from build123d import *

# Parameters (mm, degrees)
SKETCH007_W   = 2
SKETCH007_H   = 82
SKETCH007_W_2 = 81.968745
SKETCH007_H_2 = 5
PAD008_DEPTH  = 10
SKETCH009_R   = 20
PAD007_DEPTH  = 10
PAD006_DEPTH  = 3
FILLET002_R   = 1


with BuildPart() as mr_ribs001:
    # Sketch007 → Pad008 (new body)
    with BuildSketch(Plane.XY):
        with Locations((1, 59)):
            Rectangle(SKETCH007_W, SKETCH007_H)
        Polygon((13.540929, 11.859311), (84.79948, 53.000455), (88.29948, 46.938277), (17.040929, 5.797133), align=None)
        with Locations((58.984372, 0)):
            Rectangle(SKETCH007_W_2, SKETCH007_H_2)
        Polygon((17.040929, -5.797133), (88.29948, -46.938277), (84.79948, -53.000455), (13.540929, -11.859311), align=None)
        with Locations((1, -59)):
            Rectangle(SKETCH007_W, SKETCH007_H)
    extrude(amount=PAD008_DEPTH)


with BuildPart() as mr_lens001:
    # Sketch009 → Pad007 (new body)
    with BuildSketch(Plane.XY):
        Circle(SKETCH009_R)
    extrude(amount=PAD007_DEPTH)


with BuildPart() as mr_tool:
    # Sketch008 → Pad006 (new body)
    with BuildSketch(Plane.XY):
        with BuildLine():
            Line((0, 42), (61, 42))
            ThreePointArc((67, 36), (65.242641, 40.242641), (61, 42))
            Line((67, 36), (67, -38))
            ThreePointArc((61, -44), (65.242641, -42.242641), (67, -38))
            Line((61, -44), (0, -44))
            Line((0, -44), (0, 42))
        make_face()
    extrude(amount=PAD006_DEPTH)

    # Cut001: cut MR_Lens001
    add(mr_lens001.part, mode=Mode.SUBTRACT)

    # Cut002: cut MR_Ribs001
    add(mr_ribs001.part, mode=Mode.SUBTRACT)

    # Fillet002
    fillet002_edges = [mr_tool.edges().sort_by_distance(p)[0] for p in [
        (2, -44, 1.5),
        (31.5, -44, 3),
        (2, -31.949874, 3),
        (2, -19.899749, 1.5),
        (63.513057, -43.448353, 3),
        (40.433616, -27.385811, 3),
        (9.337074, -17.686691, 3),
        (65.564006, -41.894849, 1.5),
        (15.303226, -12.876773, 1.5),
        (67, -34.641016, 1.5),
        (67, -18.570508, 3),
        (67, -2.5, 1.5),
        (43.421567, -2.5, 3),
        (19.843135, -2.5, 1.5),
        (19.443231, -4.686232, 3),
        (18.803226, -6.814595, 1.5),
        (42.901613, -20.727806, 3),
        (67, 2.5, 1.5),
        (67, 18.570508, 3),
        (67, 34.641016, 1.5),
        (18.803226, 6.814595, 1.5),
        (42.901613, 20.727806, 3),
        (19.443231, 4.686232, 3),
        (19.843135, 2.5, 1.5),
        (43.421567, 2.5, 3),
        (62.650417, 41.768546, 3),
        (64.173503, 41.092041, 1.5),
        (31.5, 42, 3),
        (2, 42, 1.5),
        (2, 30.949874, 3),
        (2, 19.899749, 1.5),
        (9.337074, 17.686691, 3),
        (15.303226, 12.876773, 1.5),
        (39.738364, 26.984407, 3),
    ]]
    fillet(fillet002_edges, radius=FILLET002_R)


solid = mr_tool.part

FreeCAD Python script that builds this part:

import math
import FreeCAD as App
import Part
import Sketcher

V = App.Vector
Q = App.Units.Quantity


def edges_at(feature, points):
    """Names of the edges that pass closest to the given points."""
    edges = feature.Shape.Edges
    near = lambda p: min(range(len(edges)), key=lambda i: edges[i].distToShape(Part.Vertex(*p))[0])
    return sorted({f"Edge{near(p) + 1}" for p in points})

doc = App.newDocument("Part")
body = doc.addObject("PartDesign::Body", "Body")
body.AllowCompound = True

# Sketch on XY plane
sketch1 = body.newObject("Sketcher::SketchObject", "Sketch")
sketch1.AttachmentSupport = (doc.getObject("XY_Plane"), [""])
sketch1.MapMode = "FlatFace"
sketch1.addGeometry(Part.LineSegment(V(0, 100, 0), V(0, 18, 0)), False)
sketch1.addGeometry(Part.LineSegment(V(0, 18, 0), V(2, 18, 0)), False)
sketch1.addGeometry(Part.LineSegment(V(2, 18, 0), V(2, 100, 0)), False)
sketch1.addGeometry(Part.LineSegment(V(2, 100, 0), V(0, 100, 0)), False)
sketch1.addGeometry(Part.LineSegment(V(84.8, 53, 0), V(13.5, 11.9, 0)), False)
sketch1.addGeometry(Part.LineSegment(V(13.5, 11.9, 0), V(17, 5.8, 0)), False)
sketch1.addGeometry(Part.LineSegment(V(17, 5.8, 0), V(88.3, 46.9, 0)), False)
sketch1.addGeometry(Part.LineSegment(V(88.3, 46.9, 0), V(84.8, 53, 0)), False)
sketch1.addGeometry(Part.LineSegment(V(18, 2.5, 0), V(18, -2.5, 0)), False)
sketch1.addGeometry(Part.LineSegment(V(18, -2.5, 0), V(100, -2.5, 0)), False)
sketch1.addGeometry(Part.LineSegment(V(100, -2.5, 0), V(100, 2.5, 0)), False)
sketch1.addGeometry(Part.LineSegment(V(100, 2.5, 0), V(18, 2.5, 0)), False)
sketch1.addGeometry(Part.LineSegment(V(88.3, -46.9, 0), V(17, -5.8, 0)), False)
sketch1.addGeometry(Part.LineSegment(V(17, -5.8, 0), V(13.5, -11.9, 0)), False)
sketch1.addGeometry(Part.LineSegment(V(13.5, -11.9, 0), V(84.8, -53, 0)), False)
sketch1.addGeometry(Part.LineSegment(V(84.8, -53, 0), V(88.3, -46.9, 0)), False)
sketch1.addGeometry(Part.LineSegment(V(0, -18, 0), V(0, -100, 0)), False)
sketch1.addGeometry(Part.LineSegment(V(0, -100, 0), V(2, -100, 0)), False)
sketch1.addGeometry(Part.LineSegment(V(2, -100, 0), V(2, -18, 0)), False)
sketch1.addGeometry(Part.LineSegment(V(2, -18, 0), V(0, -18, 0)), False)
sketch1.addConstraint(Sketcher.Constraint("Coincident", 0, 2, 1, 1))
sketch1.addConstraint(Sketcher.Constraint("Coincident", 1, 2, 2, 1))
sketch1.addConstraint(Sketcher.Constraint("Coincident", 2, 2, 3, 1))
sketch1.addConstraint(Sketcher.Constraint("Coincident", 3, 2, 0, 1))
sketch1.addConstraint(Sketcher.Constraint("Coincident", 4, 2, 5, 1))
sketch1.addConstraint(Sketcher.Constraint("Coincident", 5, 2, 6, 1))
sketch1.addConstraint(Sketcher.Constraint("Coincident", 6, 2, 7, 1))
sketch1.addConstraint(Sketcher.Constraint("Coincident", 7, 2, 4, 1))
sketch1.addConstraint(Sketcher.Constraint("Coincident", 8, 2, 9, 1))
sketch1.addConstraint(Sketcher.Constraint("Coincident", 9, 2, 10, 1))
sketch1.addConstraint(Sketcher.Constraint("Coincident", 10, 2, 11, 1))
sketch1.addConstraint(Sketcher.Constraint("Coincident", 11, 2, 8, 1))
sketch1.addConstraint(Sketcher.Constraint("Coincident", 12, 2, 13, 1))
sketch1.addConstraint(Sketcher.Constraint("Coincident", 13, 2, 14, 1))
sketch1.addConstraint(Sketcher.Constraint("Coincident", 14, 2, 15, 1))
sketch1.addConstraint(Sketcher.Constraint("Coincident", 15, 2, 12, 1))
sketch1.addConstraint(Sketcher.Constraint("Coincident", 16, 2, 17, 1))
sketch1.addConstraint(Sketcher.Constraint("Coincident", 17, 2, 18, 1))
sketch1.addConstraint(Sketcher.Constraint("Coincident", 18, 2, 19, 1))
sketch1.addConstraint(Sketcher.Constraint("Coincident", 19, 2, 16, 1))
sketch1.addConstraint(Sketcher.Constraint("Vertical", 0))
sketch1.addConstraint(Sketcher.Constraint("Horizontal", 1))
sketch1.addConstraint(Sketcher.Constraint("Vertical", 2))
sketch1.addConstraint(Sketcher.Constraint("Horizontal", 3))
sketch1.addConstraint(Sketcher.Constraint("Vertical", 8))
sketch1.addConstraint(Sketcher.Constraint("Horizontal", 9))
sketch1.addConstraint(Sketcher.Constraint("Vertical", 10))
sketch1.addConstraint(Sketcher.Constraint("Horizontal", 11))
sketch1.addConstraint(Sketcher.Constraint("Vertical", 16))
sketch1.addConstraint(Sketcher.Constraint("Horizontal", 17))
sketch1.addConstraint(Sketcher.Constraint("Vertical", 18))
sketch1.addConstraint(Sketcher.Constraint("Horizontal", 19))
sketch1.addConstraint(Sketcher.Constraint("Symmetric", 3, 2, 16, 2, -1, 1))
sketch1.addConstraint(Sketcher.Constraint("Symmetric", 5, 2, 12, 2, -1))
sketch1.addConstraint(Sketcher.Constraint("Symmetric", 4, 2, 13, 2, -1))
sketch1.addConstraint(Sketcher.Constraint("Symmetric", 7, 2, 14, 2, -1))
sketch1.addConstraint(Sketcher.Constraint("Symmetric", 6, 2, 15, 2, -1))
sketch1.addConstraint(Sketcher.Constraint("Symmetric", 1, 2, 18, 2, -1))
sketch1.addConstraint(Sketcher.Constraint("PointOnObject", 0, 2, -2))
sketch1.addConstraint(Sketcher.Constraint("Perpendicular", 4, 5))
sketch1.addConstraint(Sketcher.Constraint("Perpendicular", 5, 6))
sketch1.addConstraint(Sketcher.Constraint("Perpendicular", 6, 7))
sketch1.addConstraint(Sketcher.Constraint("DistanceX", 1, 1, 1, 2, 2.0))
sketch1.addConstraint(Sketcher.Constraint("DistanceY", 0, 2, 0, 1, 82.0))
sketch1.addConstraint(Sketcher.Constraint("DistanceY", 8, 2, 8, 1, 5.0))
sketch1.addConstraint(Sketcher.Constraint("Angle", 4, Q("-150 deg")))
sketch1.addConstraint(Sketcher.Constraint("Distance", 5, 7.0))
sketch1.addConstraint(Sketcher.Constraint("DistanceY", -1, 1, 0, 2, 18.0))
sketch1.addConstraint(Sketcher.Constraint("DistanceX", -1, 1, 8, 2, 18.0))
sketch1.addConstraint(Sketcher.Constraint("DistanceY", 8, 2, -1, 1, 2.5))
sketch1.addConstraint(Sketcher.Constraint("DistanceX", 9, 1, 9, 2, 81.968745))
sketch1.addConstraint(Sketcher.Constraint("DistanceX", -1, 1, 4, 2, 13.540929))
sketch1.addConstraint(Sketcher.Constraint("DistanceY", -1, 1, 4, 2, 11.859311))
sketch1.addConstraint(Sketcher.Constraint("DistanceX", -1, 1, 6, 2, 88.29948))
pad1 = body.newObject("PartDesign::Pad", "Pad")
pad1.Profile = sketch1
pad1.Length = 10
body2 = doc.addObject("PartDesign::Body", "Body001")

# Sketch on XY plane
sketch2 = body2.newObject("Sketcher::SketchObject", "Sketch001")
sketch2.AttachmentSupport = (doc.getObject("XY_Plane001"), [""])
sketch2.MapMode = "FlatFace"
sketch2.addGeometry(Part.Circle(V(0, 0, 0), V(0, 0, 1), 20), False)
sketch2.addConstraint(Sketcher.Constraint("Coincident", 0, 3, -1, 1))
sketch2.addConstraint(Sketcher.Constraint("Diameter", 0, 40.0))
pad2 = body2.newObject("PartDesign::Pad", "Pad001")
pad2.Profile = sketch2
pad2.Length = 10
body3 = doc.addObject("PartDesign::Body", "Body002")
body3.AllowCompound = True

# Sketch on XY plane
sketch3 = body3.newObject("Sketcher::SketchObject", "Sketch002")
sketch3.AttachmentSupport = (doc.getObject("XY_Plane002"), [""])
sketch3.MapMode = "FlatFace"
sketch3.addGeometry(Part.LineSegment(V(61, 42, 0), V(0, 42, 0)), False)
sketch3.addGeometry(Part.LineSegment(V(0, 42, 0), V(0, -44, 0)), False)
sketch3.addGeometry(Part.LineSegment(V(0, -44, 0), V(61, -44, 0)), False)
sketch3.addGeometry(Part.ArcOfCircle(Part.Circle(V(61, -38, 0), V(0, 0, 1), 6), math.radians(-90), math.radians(0)), False)
sketch3.addGeometry(Part.LineSegment(V(67, -38, 0), V(67, 36, 0)), False)
sketch3.addGeometry(Part.ArcOfCircle(Part.Circle(V(61, 36, 0), V(0, 0, 1), 6), math.radians(0), math.radians(90)), False)
sketch3.addConstraint(Sketcher.Constraint("Coincident", 0, 2, 1, 1))
sketch3.addConstraint(Sketcher.Constraint("Coincident", 1, 2, 2, 1))
sketch3.addConstraint(Sketcher.Constraint("Tangent", 2, 2, 3, 1))
sketch3.addConstraint(Sketcher.Constraint("Tangent", 3, 2, 4, 1))
sketch3.addConstraint(Sketcher.Constraint("Tangent", 4, 2, 5, 1))
sketch3.addConstraint(Sketcher.Constraint("Tangent", 5, 2, 0, 1))
sketch3.addConstraint(Sketcher.Constraint("Horizontal", 0))
sketch3.addConstraint(Sketcher.Constraint("Vertical", 1))
sketch3.addConstraint(Sketcher.Constraint("Horizontal", 2))
sketch3.addConstraint(Sketcher.Constraint("Vertical", 4))
sketch3.addConstraint(Sketcher.Constraint("Equal", 3, 5))
sketch3.addConstraint(Sketcher.Constraint("PointOnObject", 0, 2, -2))
sketch3.addConstraint(Sketcher.Constraint("Radius", 3, 5.999999))
sketch3.addConstraint(Sketcher.Constraint("DistanceX", 0, 2, 0, 1, 61.0))
sketch3.addConstraint(Sketcher.Constraint("DistanceY", 1, 2, 1, 1, 86.0))
sketch3.addConstraint(Sketcher.Constraint("DistanceY", 3, 3, -1, 1, 38.000001))
pad3 = body3.newObject("PartDesign::Pad", "Pad002")
pad3.Profile = sketch3
pad3.Length = 3
doc.recompute()

boolean = body3.newObject("PartDesign::Boolean", "Boolean")
boolean.Type = "Cut"
boolean.addObjects([body2])
doc.recompute()

boolean2 = body3.newObject("PartDesign::Boolean", "Boolean001")
boolean2.Type = "Cut"
boolean2.addObjects([body])
doc.recompute()

fillet = body3.newObject("PartDesign::Fillet", "Fillet")
fillet.Base = (boolean2, edges_at(boolean2, [
    (2, -44, 1.5),
    (31.5, -44, 3),
    (2, -31.95, 3),
    (2, -19.9, 1.5),
    (63.513, -43.448, 3),
    (40.434, -27.386, 3),
    (9.337, -17.687, 3),
    (65.564, -41.895, 1.5),
    (15.303, -12.877, 1.5),
    (67, -34.641, 1.5),
    (67, -18.571, 3),
    (67, -2.5, 1.5),
    (43.422, -2.5, 3),
    (19.843, -2.5, 1.5),
    (19.443, -4.686, 3),
    (18.803, -6.815, 1.5),
    (42.902, -20.728, 3),
    (67, 2.5, 1.5),
    (67, 18.571, 3),
    (67, 34.641, 1.5),
    (18.803, 6.815, 1.5),
    (42.902, 20.728, 3),
    (19.443, 4.686, 3),
    (19.843, 2.5, 1.5),
    (43.422, 2.5, 3),
    (62.65, 41.769, 3),
    (64.174, 41.092, 1.5),
    (31.5, 42, 3),
    (2, 42, 1.5),
    (2, 30.95, 3),
    (2, 19.9, 1.5),
    (9.337, 17.687, 3),
    (15.303, 12.877, 1.5),
    (39.738, 26.984, 3),
]))
fillet.Radius = 1

doc.recompute()
